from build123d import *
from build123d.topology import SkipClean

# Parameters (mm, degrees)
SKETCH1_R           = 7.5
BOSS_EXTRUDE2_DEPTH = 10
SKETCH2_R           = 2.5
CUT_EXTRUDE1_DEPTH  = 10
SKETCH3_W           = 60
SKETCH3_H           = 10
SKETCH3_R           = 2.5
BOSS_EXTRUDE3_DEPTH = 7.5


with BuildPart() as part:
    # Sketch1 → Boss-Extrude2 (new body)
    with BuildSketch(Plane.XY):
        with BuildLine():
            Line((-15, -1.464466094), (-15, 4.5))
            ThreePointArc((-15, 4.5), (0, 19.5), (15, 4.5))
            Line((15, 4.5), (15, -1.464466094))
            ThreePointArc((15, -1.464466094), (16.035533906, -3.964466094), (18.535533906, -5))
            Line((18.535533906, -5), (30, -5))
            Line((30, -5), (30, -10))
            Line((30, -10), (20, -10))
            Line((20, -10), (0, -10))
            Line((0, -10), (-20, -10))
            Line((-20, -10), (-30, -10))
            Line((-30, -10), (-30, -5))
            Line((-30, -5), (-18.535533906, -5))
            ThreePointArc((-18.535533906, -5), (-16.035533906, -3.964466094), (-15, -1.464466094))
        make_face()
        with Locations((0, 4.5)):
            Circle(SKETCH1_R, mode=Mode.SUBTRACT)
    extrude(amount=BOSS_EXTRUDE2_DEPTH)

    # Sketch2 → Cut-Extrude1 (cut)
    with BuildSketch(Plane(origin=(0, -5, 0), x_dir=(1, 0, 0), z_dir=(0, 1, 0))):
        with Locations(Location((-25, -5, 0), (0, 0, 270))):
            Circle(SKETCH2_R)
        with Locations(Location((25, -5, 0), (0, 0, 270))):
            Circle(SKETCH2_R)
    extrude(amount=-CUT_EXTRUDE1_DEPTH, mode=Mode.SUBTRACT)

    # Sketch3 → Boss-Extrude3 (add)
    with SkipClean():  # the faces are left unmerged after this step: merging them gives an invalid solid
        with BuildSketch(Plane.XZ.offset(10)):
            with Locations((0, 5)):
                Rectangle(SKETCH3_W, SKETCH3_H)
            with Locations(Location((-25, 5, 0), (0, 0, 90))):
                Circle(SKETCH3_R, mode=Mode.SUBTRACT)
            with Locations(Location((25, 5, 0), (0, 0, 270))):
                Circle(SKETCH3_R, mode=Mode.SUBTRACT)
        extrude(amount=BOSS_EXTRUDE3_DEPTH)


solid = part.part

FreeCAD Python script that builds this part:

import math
import FreeCAD as App
import Part
import Sketcher
from FreeCAD import Vector
Q = App.Units.Quantity

doc = App.newDocument("Part")
params = doc.addObject("Spreadsheet::Sheet", "Params")
for row, (alias, value) in enumerate([
    ("sketch1_diameter", "15 mm"),
    ("sketch1_radius", "15 mm"),
    ("sketch1_width", "60 mm"),
    ("sketch1_height", "5 mm"),
    ("pad1_length", "10 mm"),
    ("sketch2_diameter", "5 mm"),
    ("pocket1_length", "10 mm"),
    ("sketch3_diameter", "5 mm"),
    ("sketch3_width", "60 mm"),
    ("sketch3_height", "10 mm"),
    ("pad2_length", "7.5 mm"),
], start=1):
    params.set(f"A{row}", alias)
    params.set(f"B{row}", "=" + value)
    params.setAlias(f"B{row}", alias)

body = doc.addObject("PartDesign::Body", "Body")

# Sketch on XY plane
sketch1 = doc.addObject("Sketcher::SketchObject", "Sketch")
body.addObject(sketch1)
sketch1.AttachmentSupport = (doc.XY_Plane, [""])
sketch1.MapMode = "FlatFace"
sketch1.addGeometry([
    Part.LineSegment(Vector(-15, 4.5, 0), Vector(-15, -1.5, 0)),  # 0
    Part.ArcOfCircle(Part.Circle(Vector(-18.5, -1.5, 0), Vector(0, 0, 1), 3.5), math.radians(-90), math.radians(0)),  # 1
    Part.LineSegment(Vector(-18.5, -5, 0), Vector(-30, -5, 0)),  # 2
    Part.LineSegment(Vector(-30, -5, 0), Vector(-30, -10, 0)),  # 3
    Part.LineSegment(Vector(-30, -10, 0), Vector(30, -10, 0)),  # 4
    Part.LineSegment(Vector(30, -10, 0), Vector(30, -5, 0)),  # 5
    Part.LineSegment(Vector(30, -5, 0), Vector(18.5, -5, 0)),  # 6
    Part.ArcOfCircle(Part.Circle(Vector(18.5, -1.5, 0), Vector(0, 0, 1), 3.5), math.radians(180), math.radians(270)),  # 7
    Part.LineSegment(Vector(15, -1.5, 0), Vector(15, 4.5, 0)),  # 8
    Part.ArcOfCircle(Part.Circle(Vector(0, 4.5, 0), Vector(0, 0, 1), 15), math.radians(0), math.radians(180)),  # 9
    Part.Circle(Vector(0, 4.5, 0), Vector(0, 0, 1), 7.5),  # 10
], False)
sketch1.addConstraint([
    Sketcher.Constraint("Tangent", 0, 2, 1, 2),
    Sketcher.Constraint("Tangent", 1, 1, 2, 1),
    Sketcher.Constraint("Coincident", 2, 2, 3, 1),
    Sketcher.Constraint("Coincident", 3, 2, 4, 1),
    Sketcher.Constraint("Coincident", 4, 2, 5, 1),
    Sketcher.Constraint("Coincident", 5, 2, 6, 1),
    Sketcher.Constraint("Tangent", 6, 2, 7, 2),
    Sketcher.Constraint("Tangent", 7, 1, 8, 1),
    Sketcher.Constraint("Tangent", 8, 2, 9, 1),
    Sketcher.Constraint("Tangent", 9, 2, 0, 1),
    Sketcher.Constraint("Vertical", 0),
    Sketcher.Constraint("Horizontal", 2),
    Sketcher.Constraint("Vertical", 3),
    Sketcher.Constraint("Horizontal", 4),
    Sketcher.Constraint("Vertical", 5),
    Sketcher.Constraint("Horizontal", 6),
    Sketcher.Constraint("Vertical", 8),
    Sketcher.Constraint("Coincident", 10, 3, 9, 3),
    Sketcher.Constraint("Equal", 1, 7),
    Sketcher.Constraint("Symmetric", 1, 3, 7, 3, -2),
    Sketcher.Constraint("Equal", 2, 6),
    Sketcher.Constraint("Diameter", 10, Q("15 mm")),
    Sketcher.Constraint("Radius", 9, Q("15 mm")),
    Sketcher.Constraint("DistanceX", 4, 1, 4, 2, Q("60 mm")),
    Sketcher.Constraint("DistanceY", 3, 2, 3, 1, Q("5 mm")),
    Sketcher.Constraint("DistanceY", 1, 1, -1, 1, Q("5 mm")),
    Sketcher.Constraint("DistanceY", -1, 1, 9, 3, Q("4.5 mm")),
    Sketcher.Constraint("Radius", 1, Q("3.535534 mm")),
])
sketch1.setExpression("Constraints[21]", "Params.sketch1_diameter")
sketch1.setExpression("Constraints[22]", "Params.sketch1_radius")
sketch1.setExpression("Constraints[23]", "Params.sketch1_width")
sketch1.setExpression("Constraints[24]", "Params.sketch1_height")
pad1 = doc.addObject("PartDesign::Pad", "Pad")
body.addObject(pad1)
pad1.Profile = sketch1
pad1.setExpression("Length", "Params.pad1_length")

# Sketch on XZ plane
sketch2 = doc.addObject("Sketcher::SketchObject", "Sketch001")
body.addObject(sketch2)
sketch2.AttachmentSupport = (doc.XZ_Plane, [""])
sketch2.MapMode = "FlatFace"
sketch2.AttachmentOffset = App.Placement(Vector(0, 0, 5), App.Rotation())
sketch2.addGeometry([
    Part.Circle(Vector(-25, 5, 0), Vector(0, 0, 1), 2.5),
    Part.Circle(Vector(25, 5, 0), Vector(0, 0, 1), 2.5),
], False)
sketch2.addConstraint([
    Sketcher.Constraint("Equal", 0, 1),
    Sketcher.Constraint("Symmetric", 0, 3, 1, 3, -2),
    Sketcher.Constraint("Diameter", 0, Q("5 mm")),
    Sketcher.Constraint("DistanceX", 0, 3, -1, 1, Q("25 mm")),
    Sketcher.Constraint("DistanceY", -1, 1, 0, 3, Q("5 mm")),
])
sketch2.setExpression("Constraints[2]", "Params.sketch2_diameter")
pocket1 = doc.addObject("PartDesign::Pocket", "Pocket")
body.addObject(pocket1)
pocket1.Profile = sketch2
pocket1.setExpression("Length", "Params.pocket1_length")
pocket1.Reversed = True

# Sketch on XZ plane
sketch3 = doc.addObject("Sketcher::SketchObject", "Sketch002")
body.addObject(sketch3)
sketch3.AttachmentSupport = (doc.XZ_Plane, [""])
sketch3.MapMode = "FlatFace"
sketch3.AttachmentOffset = App.Placement(Vector(0, 0, 10), App.Rotation())
sketch3.addGeometry([
    Part.LineSegment(Vector(-30, 10, 0), Vector(-30, 0, 0)),  # 0
    Part.LineSegment(Vector(-30, 0, 0), Vector(30, 0, 0)),  # 1
    Part.LineSegment(Vector(30, 0, 0), Vector(30, 10, 0)),  # 2
    Part.LineSegment(Vector(30, 10, 0), Vector(-30, 10, 0)),  # 3
    Part.Circle(Vector(-25, 5, 0), Vector(0, 0, 1), 2.5),  # 4
    Part.Circle(Vector(25, 5, 0), Vector(0, 0, 1), 2.5),  # 5
], False)
sketch3.addConstraint([
    Sketcher.Constraint("Coincident", 0, 2, 1, 1),
    Sketcher.Constraint("Coincident", 1, 2, 2, 1),
    Sketcher.Constraint("Coincident", 2, 2, 3, 1),
    Sketcher.Constraint("Coincident", 3, 2, 0, 1),
    Sketcher.Constraint("Vertical", 0),
    Sketcher.Constraint("Horizontal", 1),
    Sketcher.Constraint("Vertical", 2),
    Sketcher.Constraint("Horizontal", 3),
    Sketcher.Constraint("Equal", 4, 5),
    Sketcher.Constraint("Symmetric", 0, 2, 1, 2, -1, 1),
    Sketcher.Constraint("Symmetric", 4, 3, 5, 3, -2),
    Sketcher.Constraint("Diameter", 4, Q("5 mm")),
    Sketcher.Constraint("DistanceX", 1, 1, 1, 2, Q("60 mm")),
    Sketcher.Constraint("DistanceY", 0, 2, 0, 1, Q("10 mm")),
    Sketcher.Constraint("DistanceX", 4, 3, -1, 1, Q("25 mm")),
    Sketcher.Constraint("DistanceY", -1, 1, 4, 3, Q("5 mm")),
])
sketch3.setExpression("Constraints[11]", "Params.sketch3_diameter")
sketch3.setExpression("Constraints[12]", "Params.sketch3_width")
sketch3.setExpression("Constraints[13]", "Params.sketch3_height")
pad2 = doc.addObject("PartDesign::Pad", "Pad001")
body.addObject(pad2)
pad2.Profile = sketch3
pad2.setExpression("Length", "Params.pad2_length")

doc.recompute()
